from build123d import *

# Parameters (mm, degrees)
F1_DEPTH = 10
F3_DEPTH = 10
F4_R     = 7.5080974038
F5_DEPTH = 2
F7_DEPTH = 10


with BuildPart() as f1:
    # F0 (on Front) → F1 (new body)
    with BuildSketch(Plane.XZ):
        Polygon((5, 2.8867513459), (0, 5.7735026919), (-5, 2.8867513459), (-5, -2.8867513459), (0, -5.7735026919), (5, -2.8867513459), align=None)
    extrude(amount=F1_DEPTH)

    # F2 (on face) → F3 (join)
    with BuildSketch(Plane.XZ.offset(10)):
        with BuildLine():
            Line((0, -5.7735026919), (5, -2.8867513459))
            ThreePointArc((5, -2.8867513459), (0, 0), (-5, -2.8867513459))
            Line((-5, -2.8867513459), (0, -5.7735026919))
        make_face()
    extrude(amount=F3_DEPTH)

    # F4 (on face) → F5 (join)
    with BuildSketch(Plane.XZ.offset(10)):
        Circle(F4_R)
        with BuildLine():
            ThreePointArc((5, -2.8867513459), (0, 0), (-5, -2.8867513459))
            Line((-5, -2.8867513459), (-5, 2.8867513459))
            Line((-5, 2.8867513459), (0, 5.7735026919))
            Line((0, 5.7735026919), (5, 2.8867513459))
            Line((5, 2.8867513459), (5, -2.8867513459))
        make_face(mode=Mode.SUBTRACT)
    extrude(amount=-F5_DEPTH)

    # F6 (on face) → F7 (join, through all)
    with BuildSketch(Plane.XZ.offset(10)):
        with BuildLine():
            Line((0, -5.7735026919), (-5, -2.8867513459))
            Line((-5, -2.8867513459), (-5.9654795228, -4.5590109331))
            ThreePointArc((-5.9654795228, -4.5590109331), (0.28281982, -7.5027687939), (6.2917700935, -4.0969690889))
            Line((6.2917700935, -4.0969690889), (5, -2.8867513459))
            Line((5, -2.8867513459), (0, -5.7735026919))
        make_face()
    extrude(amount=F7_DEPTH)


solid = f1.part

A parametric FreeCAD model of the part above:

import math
import FreeCAD as App
import Part
import Sketcher

V = App.Vector
Q = App.Units.Quantity

doc = App.newDocument("Part")
body = doc.addObject("PartDesign::Body", "Body")

# Sketch on XZ plane
sketch1 = body.newObject("Sketcher::SketchObject", "Sketch")
sketch1.AttachmentSupport = (doc.getObject("XZ_Plane"), [""])
sketch1.MapMode = "FlatFace"
sketch1.addGeometry(Part.LineSegment(V(5, 3, 0), V(0, 6, 0)), False)
sketch1.addGeometry(Part.LineSegment(V(0, 6, 0), V(-5, 3, 0)), False)
sketch1.addGeometry(Part.LineSegment(V(-5, 3, 0), V(-5, -3, 0)), False)
sketch1.addGeometry(Part.LineSegment(V(-5, -3, 0), V(0, -6, 0)), False)
sketch1.addGeometry(Part.LineSegment(V(0, -6, 0), V(5, -3, 0)), False)
sketch1.addGeometry(Part.LineSegment(V(5, -3, 0), V(5, 3, 0)), False)
sketch1.addConstraint(Sketcher.Constraint("Coincident", 0, 2, 1, 1))
sketch1.addConstraint(Sketcher.Constraint("Coincident", 1, 2, 2, 1))
sketch1.addConstraint(Sketcher.Constraint("Coincident", 2, 2, 3, 1))
sketch1.addConstraint(Sketcher.Constraint("Coincident", 3, 2, 4, 1))
sketch1.addConstraint(Sketcher.Constraint("Coincident", 4, 2, 5, 1))
sketch1.addConstraint(Sketcher.Constraint("Coincident", 5, 2, 0, 1))
sketch1.addConstraint(Sketcher.Constraint("Vertical", 2))
sketch1.addConstraint(Sketcher.Constraint("Vertical", 5))
sketch1.addConstraint(Sketcher.Constraint("Symmetric", 0, 2, 3, 2, -1, 1))
sketch1.addConstraint(Sketcher.Constraint("Symmetric", 1, 2, 4, 2, -1, 1))
sketch1.addConstraint(Sketcher.Constraint("PointOnObject", 0, 2, -2))
sketch1.addConstraint(Sketcher.Constraint("Parallel", 0, 3))
sketch1.addConstraint(Sketcher.Constraint("Horizontal", 2, 2, 4, 2))
sketch1.addConstraint(Sketcher.Constraint("Angle", 0, Q("150 deg")))
sketch1.addConstraint(Sketcher.Constraint("DistanceX", 1, 2, -1, 1, Q("5 mm")))
sketch1.addConstraint(Sketcher.Constraint("DistanceY", 2, 2, 2, 1, Q("5.773503 mm")))
pad1 = body.newObject("PartDesign::Pad", "Pad")
pad1.Profile = sketch1
pad1.Length = 10

# Sketch on XZ plane
sketch2 = body.newObject("Sketcher::SketchObject", "Sketch001")
sketch2.AttachmentSupport = (doc.getObject("XZ_Plane"), [""])
sketch2.MapMode = "FlatFace"
sketch2.AttachmentOffset = App.Placement(V(0, 0, 10), App.Rotation())
sketch2.addGeometry(Part.LineSegment(V(0, -6, 0), V(5, -3, 0)), False)
sketch2.addGeometry(Part.ArcOfCircle(Part.Circle(V(0, -6, 0), V(0, 0, 1), 6), math.radians(30), math.radians(150)), False)
sketch2.addGeometry(Part.LineSegment(V(-5, -3, 0), V(0, -6, 0)), False)
sketch2.addConstraint(Sketcher.Constraint("Coincident", 0, 2, 1, 1))
sketch2.addConstraint(Sketcher.Constraint("Coincident", 1, 2, 2, 1))
sketch2.addConstraint(Sketcher.Constraint("Coincident", 2, 2, 0, 1))
sketch2.addConstraint(Sketcher.Constraint("Coincident", 2, 2, 1, 3))
sketch2.addConstraint(Sketcher.Constraint("Symmetric", 0, 2, 1, 2, -2))
sketch2.addConstraint(Sketcher.Constraint("Angle", 0, Q("30 deg")))
sketch2.addConstraint(Sketcher.Constraint("DistanceX", -1, 1, 0, 2, Q("5 mm")))
sketch2.addConstraint(Sketcher.Constraint("DistanceY", 0, 2, -1, 1, Q("2.886751 mm")))
pad2 = body.newObject("PartDesign::Pad", "Pad001")
pad2.Profile = sketch2
pad2.Length = 10

# Sketch on XZ plane
sketch3 = body.newObject("Sketcher::SketchObject", "Sketch002")
sketch3.AttachmentSupport = (doc.getObject("XZ_Plane"), [""])
sketch3.MapMode = "FlatFace"
sketch3.AttachmentOffset = App.Placement(V(0, 0, 10), App.Rotation())
sketch3.addGeometry(Part.Circle(V(0, 0, 0), V(0, 0, 1), 8), False)
sketch3.addGeometry(Part.LineSegment(V(5, 3, 0), V(5, -3, 0)), False)
sketch3.addGeometry(Part.ArcOfCircle(Part.Circle(V(0, -6, 0), V(0, 0, 1), 6), math.radians(30), math.radians(150)), False)
sketch3.addGeometry(Part.LineSegment(V(-5, -3, 0), V(-5, 3, 0)), False)
sketch3.addGeometry(Part.LineSegment(V(-5, 3, 0), V(0, 6, 0)), False)
sketch3.addGeometry(Part.LineSegment(V(0, 6, 0), V(5, 3, 0)), False)
sketch3.addConstraint(Sketcher.Constraint("Coincident", 1, 2, 2, 1))
sketch3.addConstraint(Sketcher.Constraint("Coincident", 2, 2, 3, 1))
sketch3.addConstraint(Sketcher.Constraint("Coincident", 3, 2, 4, 1))
sketch3.addConstraint(Sketcher.Constraint("Coincident", 4, 2, 5, 1))
sketch3.addConstraint(Sketcher.Constraint("Coincident", 5, 2, 1, 1))
sketch3.addConstraint(Sketcher.Constraint("Vertical", 1))
sketch3.addConstraint(Sketcher.Constraint("Vertical", 3))
sketch3.addConstraint(Sketcher.Constraint("Coincident", 0, 3, -1, 1))
sketch3.addConstraint(Sketcher.Constraint("Symmetric", 1, 2, 3, 2, -1, 1))
sketch3.addConstraint(Sketcher.Constraint("PointOnObject", 2, 3, -2))
sketch3.addConstraint(Sketcher.Constraint("PointOnObject", 4, 2, -2))
sketch3.addConstraint(Sketcher.Constraint("Horizontal", 3, 2, 5, 2))
sketch3.addConstraint(Sketcher.Constraint("Angle", 4, Q("30 deg")))
sketch3.addConstraint(Sketcher.Constraint("DistanceX", -1, 1, 1, 2, Q("5 mm")))
sketch3.addConstraint(Sketcher.Constraint("Diameter", 0, Q("15.016195 mm")))
sketch3.addConstraint(Sketcher.Constraint("Radius", 2, Q("5.773503 mm")))
sketch3.addConstraint(Sketcher.Constraint("DistanceY", 1, 2, 1, 1, Q("5.773503 mm")))
pad3 = body.newObject("PartDesign::Pad", "Pad002")
pad3.Profile = sketch3
pad3.Length = 2
pad3.Reversed = True

# Sketch on XZ plane
sketch4 = body.newObject("Sketcher::SketchObject", "Sketch003")
sketch4.AttachmentSupport = (doc.getObject("XZ_Plane"), [""])
sketch4.MapMode = "FlatFace"
sketch4.AttachmentOffset = App.Placement(V(0, 0, 10), App.Rotation())
sketch4.addGeometry(Part.LineSegment(V(0, -5.8, 0), V(-5, -2.9, 0)), False)
sketch4.addGeometry(Part.LineSegment(V(-5, -2.9, 0), V(-6, -4.6, 0)), False)
sketch4.addGeometry(Part.ArcOfCircle(Part.Circle(V(0, 0, 0), V(0, 0, 1), 7.5), math.radians(-143), math.radians(-33)), False)
sketch4.addGeometry(Part.LineSegment(V(6.3, -4.1, 0), V(5, -2.9, 0)), False)
sketch4.addGeometry(Part.LineSegment(V(5, -2.9, 0), V(0, -5.8, 0)), False)
sketch4.addConstraint(Sketcher.Constraint("Coincident", 0, 2, 1, 1))
sketch4.addConstraint(Sketcher.Constraint("Coincident", 1, 2, 2, 1))
sketch4.addConstraint(Sketcher.Constraint("Coincident", 2, 2, 3, 1))
sketch4.addConstraint(Sketcher.Constraint("Coincident", 3, 2, 4, 1))
sketch4.addConstraint(Sketcher.Constraint("Coincident", 4, 2, 0, 1))
sketch4.addConstraint(Sketcher.Constraint("Coincident", 2, 3, -1, 1))
sketch4.addConstraint(Sketcher.Constraint("Symmetric", 0, 2, 3, 2, -2))
sketch4.addConstraint(Sketcher.Constraint("PointOnObject", 4, 2, -2))
sketch4.addConstraint(Sketcher.Constraint("Perpendicular", 0, 1))
sketch4.addConstraint(Sketcher.Constraint("Angle", 0, Q("150 deg")))
sketch4.addConstraint(Sketcher.Constraint("DistanceX", 0, 2, -1, 1, Q("5 mm")))
sketch4.addConstraint(Sketcher.Constraint("Radius", 2, Q("7.508097 mm")))
sketch4.addConstraint(Sketcher.Constraint("Distance", 1, Q("1.930959 mm")))
sketch4.addConstraint(Sketcher.Constraint("DistanceX", -1, 1, 2, 2, Q("6.29177 mm")))
pad4 = body.newObject("PartDesign::Pad", "Pad003")
pad4.Profile = sketch4
pad4.Type = "UpToLast"

doc.recompute()
